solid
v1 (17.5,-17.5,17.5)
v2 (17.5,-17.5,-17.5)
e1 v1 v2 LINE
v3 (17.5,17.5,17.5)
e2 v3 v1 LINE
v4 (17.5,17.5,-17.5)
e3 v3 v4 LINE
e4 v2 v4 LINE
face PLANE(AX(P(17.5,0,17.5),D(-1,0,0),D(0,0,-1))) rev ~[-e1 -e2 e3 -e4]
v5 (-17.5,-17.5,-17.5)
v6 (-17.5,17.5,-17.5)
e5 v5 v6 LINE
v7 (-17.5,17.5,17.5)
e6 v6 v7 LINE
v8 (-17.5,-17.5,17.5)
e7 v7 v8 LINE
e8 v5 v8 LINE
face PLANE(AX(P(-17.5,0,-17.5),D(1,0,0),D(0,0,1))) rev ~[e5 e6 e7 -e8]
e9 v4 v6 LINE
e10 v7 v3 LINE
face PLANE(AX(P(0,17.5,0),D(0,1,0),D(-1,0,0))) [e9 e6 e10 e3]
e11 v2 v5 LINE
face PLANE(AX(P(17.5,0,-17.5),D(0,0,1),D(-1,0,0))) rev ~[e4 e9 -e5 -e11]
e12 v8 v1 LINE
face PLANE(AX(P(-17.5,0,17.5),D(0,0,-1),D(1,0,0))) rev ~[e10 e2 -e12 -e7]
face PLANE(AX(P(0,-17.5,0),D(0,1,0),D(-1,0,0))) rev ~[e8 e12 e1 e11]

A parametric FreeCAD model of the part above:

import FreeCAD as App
import Part
import Sketcher


def add_polygon(sketch, points):
    """Adds a closed chain of lines whose ends are joined by coincident constraints."""
    first, n = sketch.GeometryCount, len(points)
    for a, b in zip(points, points[1:] + points[:1]):
        sketch.addGeometry(Part.LineSegment(App.Vector(*a, 0), App.Vector(*b, 0)), False)
    for i in range(n):
        sketch.addConstraint(Sketcher.Constraint("Coincident", first + i, 2, first + (i + 1) % n, 1))

doc = App.newDocument("Part")
body = doc.addObject("PartDesign::Body", "Body")

sketch1 = body.newObject("Sketcher::SketchObject", "Sketch")
sketch1.AttachmentSupport = (doc.getObject("XZ_Plane"), [""])
sketch1.MapMode = "FlatFace"
add_polygon(sketch1, [(17.5, 17.5), (17.5, -17.5), (-17.5, -17.5), (-17.5, 17.5)])
sketch1.addConstraint(Sketcher.Constraint("Vertical", 0))
sketch1.addConstraint(Sketcher.Constraint("Horizontal", 1))
sketch1.addConstraint(Sketcher.Constraint("Vertical", 2))
sketch1.addConstraint(Sketcher.Constraint("Horizontal", 3))
sketch1.addConstraint(Sketcher.Constraint("Symmetric", 0, 2, 2, 2, -1, 1))
sketch1.addConstraint(Sketcher.Constraint("Equal", 3, 0))
sketch1.addConstraint(Sketcher.Constraint("DistanceX", 1, 2, 1, 1, 35.0))
pad1 = body.newObject("PartDesign::Pad", "Pad")
pad1.Profile = sketch1
pad1.Length = 35
pad1.Midplane = True

doc.recompute()
